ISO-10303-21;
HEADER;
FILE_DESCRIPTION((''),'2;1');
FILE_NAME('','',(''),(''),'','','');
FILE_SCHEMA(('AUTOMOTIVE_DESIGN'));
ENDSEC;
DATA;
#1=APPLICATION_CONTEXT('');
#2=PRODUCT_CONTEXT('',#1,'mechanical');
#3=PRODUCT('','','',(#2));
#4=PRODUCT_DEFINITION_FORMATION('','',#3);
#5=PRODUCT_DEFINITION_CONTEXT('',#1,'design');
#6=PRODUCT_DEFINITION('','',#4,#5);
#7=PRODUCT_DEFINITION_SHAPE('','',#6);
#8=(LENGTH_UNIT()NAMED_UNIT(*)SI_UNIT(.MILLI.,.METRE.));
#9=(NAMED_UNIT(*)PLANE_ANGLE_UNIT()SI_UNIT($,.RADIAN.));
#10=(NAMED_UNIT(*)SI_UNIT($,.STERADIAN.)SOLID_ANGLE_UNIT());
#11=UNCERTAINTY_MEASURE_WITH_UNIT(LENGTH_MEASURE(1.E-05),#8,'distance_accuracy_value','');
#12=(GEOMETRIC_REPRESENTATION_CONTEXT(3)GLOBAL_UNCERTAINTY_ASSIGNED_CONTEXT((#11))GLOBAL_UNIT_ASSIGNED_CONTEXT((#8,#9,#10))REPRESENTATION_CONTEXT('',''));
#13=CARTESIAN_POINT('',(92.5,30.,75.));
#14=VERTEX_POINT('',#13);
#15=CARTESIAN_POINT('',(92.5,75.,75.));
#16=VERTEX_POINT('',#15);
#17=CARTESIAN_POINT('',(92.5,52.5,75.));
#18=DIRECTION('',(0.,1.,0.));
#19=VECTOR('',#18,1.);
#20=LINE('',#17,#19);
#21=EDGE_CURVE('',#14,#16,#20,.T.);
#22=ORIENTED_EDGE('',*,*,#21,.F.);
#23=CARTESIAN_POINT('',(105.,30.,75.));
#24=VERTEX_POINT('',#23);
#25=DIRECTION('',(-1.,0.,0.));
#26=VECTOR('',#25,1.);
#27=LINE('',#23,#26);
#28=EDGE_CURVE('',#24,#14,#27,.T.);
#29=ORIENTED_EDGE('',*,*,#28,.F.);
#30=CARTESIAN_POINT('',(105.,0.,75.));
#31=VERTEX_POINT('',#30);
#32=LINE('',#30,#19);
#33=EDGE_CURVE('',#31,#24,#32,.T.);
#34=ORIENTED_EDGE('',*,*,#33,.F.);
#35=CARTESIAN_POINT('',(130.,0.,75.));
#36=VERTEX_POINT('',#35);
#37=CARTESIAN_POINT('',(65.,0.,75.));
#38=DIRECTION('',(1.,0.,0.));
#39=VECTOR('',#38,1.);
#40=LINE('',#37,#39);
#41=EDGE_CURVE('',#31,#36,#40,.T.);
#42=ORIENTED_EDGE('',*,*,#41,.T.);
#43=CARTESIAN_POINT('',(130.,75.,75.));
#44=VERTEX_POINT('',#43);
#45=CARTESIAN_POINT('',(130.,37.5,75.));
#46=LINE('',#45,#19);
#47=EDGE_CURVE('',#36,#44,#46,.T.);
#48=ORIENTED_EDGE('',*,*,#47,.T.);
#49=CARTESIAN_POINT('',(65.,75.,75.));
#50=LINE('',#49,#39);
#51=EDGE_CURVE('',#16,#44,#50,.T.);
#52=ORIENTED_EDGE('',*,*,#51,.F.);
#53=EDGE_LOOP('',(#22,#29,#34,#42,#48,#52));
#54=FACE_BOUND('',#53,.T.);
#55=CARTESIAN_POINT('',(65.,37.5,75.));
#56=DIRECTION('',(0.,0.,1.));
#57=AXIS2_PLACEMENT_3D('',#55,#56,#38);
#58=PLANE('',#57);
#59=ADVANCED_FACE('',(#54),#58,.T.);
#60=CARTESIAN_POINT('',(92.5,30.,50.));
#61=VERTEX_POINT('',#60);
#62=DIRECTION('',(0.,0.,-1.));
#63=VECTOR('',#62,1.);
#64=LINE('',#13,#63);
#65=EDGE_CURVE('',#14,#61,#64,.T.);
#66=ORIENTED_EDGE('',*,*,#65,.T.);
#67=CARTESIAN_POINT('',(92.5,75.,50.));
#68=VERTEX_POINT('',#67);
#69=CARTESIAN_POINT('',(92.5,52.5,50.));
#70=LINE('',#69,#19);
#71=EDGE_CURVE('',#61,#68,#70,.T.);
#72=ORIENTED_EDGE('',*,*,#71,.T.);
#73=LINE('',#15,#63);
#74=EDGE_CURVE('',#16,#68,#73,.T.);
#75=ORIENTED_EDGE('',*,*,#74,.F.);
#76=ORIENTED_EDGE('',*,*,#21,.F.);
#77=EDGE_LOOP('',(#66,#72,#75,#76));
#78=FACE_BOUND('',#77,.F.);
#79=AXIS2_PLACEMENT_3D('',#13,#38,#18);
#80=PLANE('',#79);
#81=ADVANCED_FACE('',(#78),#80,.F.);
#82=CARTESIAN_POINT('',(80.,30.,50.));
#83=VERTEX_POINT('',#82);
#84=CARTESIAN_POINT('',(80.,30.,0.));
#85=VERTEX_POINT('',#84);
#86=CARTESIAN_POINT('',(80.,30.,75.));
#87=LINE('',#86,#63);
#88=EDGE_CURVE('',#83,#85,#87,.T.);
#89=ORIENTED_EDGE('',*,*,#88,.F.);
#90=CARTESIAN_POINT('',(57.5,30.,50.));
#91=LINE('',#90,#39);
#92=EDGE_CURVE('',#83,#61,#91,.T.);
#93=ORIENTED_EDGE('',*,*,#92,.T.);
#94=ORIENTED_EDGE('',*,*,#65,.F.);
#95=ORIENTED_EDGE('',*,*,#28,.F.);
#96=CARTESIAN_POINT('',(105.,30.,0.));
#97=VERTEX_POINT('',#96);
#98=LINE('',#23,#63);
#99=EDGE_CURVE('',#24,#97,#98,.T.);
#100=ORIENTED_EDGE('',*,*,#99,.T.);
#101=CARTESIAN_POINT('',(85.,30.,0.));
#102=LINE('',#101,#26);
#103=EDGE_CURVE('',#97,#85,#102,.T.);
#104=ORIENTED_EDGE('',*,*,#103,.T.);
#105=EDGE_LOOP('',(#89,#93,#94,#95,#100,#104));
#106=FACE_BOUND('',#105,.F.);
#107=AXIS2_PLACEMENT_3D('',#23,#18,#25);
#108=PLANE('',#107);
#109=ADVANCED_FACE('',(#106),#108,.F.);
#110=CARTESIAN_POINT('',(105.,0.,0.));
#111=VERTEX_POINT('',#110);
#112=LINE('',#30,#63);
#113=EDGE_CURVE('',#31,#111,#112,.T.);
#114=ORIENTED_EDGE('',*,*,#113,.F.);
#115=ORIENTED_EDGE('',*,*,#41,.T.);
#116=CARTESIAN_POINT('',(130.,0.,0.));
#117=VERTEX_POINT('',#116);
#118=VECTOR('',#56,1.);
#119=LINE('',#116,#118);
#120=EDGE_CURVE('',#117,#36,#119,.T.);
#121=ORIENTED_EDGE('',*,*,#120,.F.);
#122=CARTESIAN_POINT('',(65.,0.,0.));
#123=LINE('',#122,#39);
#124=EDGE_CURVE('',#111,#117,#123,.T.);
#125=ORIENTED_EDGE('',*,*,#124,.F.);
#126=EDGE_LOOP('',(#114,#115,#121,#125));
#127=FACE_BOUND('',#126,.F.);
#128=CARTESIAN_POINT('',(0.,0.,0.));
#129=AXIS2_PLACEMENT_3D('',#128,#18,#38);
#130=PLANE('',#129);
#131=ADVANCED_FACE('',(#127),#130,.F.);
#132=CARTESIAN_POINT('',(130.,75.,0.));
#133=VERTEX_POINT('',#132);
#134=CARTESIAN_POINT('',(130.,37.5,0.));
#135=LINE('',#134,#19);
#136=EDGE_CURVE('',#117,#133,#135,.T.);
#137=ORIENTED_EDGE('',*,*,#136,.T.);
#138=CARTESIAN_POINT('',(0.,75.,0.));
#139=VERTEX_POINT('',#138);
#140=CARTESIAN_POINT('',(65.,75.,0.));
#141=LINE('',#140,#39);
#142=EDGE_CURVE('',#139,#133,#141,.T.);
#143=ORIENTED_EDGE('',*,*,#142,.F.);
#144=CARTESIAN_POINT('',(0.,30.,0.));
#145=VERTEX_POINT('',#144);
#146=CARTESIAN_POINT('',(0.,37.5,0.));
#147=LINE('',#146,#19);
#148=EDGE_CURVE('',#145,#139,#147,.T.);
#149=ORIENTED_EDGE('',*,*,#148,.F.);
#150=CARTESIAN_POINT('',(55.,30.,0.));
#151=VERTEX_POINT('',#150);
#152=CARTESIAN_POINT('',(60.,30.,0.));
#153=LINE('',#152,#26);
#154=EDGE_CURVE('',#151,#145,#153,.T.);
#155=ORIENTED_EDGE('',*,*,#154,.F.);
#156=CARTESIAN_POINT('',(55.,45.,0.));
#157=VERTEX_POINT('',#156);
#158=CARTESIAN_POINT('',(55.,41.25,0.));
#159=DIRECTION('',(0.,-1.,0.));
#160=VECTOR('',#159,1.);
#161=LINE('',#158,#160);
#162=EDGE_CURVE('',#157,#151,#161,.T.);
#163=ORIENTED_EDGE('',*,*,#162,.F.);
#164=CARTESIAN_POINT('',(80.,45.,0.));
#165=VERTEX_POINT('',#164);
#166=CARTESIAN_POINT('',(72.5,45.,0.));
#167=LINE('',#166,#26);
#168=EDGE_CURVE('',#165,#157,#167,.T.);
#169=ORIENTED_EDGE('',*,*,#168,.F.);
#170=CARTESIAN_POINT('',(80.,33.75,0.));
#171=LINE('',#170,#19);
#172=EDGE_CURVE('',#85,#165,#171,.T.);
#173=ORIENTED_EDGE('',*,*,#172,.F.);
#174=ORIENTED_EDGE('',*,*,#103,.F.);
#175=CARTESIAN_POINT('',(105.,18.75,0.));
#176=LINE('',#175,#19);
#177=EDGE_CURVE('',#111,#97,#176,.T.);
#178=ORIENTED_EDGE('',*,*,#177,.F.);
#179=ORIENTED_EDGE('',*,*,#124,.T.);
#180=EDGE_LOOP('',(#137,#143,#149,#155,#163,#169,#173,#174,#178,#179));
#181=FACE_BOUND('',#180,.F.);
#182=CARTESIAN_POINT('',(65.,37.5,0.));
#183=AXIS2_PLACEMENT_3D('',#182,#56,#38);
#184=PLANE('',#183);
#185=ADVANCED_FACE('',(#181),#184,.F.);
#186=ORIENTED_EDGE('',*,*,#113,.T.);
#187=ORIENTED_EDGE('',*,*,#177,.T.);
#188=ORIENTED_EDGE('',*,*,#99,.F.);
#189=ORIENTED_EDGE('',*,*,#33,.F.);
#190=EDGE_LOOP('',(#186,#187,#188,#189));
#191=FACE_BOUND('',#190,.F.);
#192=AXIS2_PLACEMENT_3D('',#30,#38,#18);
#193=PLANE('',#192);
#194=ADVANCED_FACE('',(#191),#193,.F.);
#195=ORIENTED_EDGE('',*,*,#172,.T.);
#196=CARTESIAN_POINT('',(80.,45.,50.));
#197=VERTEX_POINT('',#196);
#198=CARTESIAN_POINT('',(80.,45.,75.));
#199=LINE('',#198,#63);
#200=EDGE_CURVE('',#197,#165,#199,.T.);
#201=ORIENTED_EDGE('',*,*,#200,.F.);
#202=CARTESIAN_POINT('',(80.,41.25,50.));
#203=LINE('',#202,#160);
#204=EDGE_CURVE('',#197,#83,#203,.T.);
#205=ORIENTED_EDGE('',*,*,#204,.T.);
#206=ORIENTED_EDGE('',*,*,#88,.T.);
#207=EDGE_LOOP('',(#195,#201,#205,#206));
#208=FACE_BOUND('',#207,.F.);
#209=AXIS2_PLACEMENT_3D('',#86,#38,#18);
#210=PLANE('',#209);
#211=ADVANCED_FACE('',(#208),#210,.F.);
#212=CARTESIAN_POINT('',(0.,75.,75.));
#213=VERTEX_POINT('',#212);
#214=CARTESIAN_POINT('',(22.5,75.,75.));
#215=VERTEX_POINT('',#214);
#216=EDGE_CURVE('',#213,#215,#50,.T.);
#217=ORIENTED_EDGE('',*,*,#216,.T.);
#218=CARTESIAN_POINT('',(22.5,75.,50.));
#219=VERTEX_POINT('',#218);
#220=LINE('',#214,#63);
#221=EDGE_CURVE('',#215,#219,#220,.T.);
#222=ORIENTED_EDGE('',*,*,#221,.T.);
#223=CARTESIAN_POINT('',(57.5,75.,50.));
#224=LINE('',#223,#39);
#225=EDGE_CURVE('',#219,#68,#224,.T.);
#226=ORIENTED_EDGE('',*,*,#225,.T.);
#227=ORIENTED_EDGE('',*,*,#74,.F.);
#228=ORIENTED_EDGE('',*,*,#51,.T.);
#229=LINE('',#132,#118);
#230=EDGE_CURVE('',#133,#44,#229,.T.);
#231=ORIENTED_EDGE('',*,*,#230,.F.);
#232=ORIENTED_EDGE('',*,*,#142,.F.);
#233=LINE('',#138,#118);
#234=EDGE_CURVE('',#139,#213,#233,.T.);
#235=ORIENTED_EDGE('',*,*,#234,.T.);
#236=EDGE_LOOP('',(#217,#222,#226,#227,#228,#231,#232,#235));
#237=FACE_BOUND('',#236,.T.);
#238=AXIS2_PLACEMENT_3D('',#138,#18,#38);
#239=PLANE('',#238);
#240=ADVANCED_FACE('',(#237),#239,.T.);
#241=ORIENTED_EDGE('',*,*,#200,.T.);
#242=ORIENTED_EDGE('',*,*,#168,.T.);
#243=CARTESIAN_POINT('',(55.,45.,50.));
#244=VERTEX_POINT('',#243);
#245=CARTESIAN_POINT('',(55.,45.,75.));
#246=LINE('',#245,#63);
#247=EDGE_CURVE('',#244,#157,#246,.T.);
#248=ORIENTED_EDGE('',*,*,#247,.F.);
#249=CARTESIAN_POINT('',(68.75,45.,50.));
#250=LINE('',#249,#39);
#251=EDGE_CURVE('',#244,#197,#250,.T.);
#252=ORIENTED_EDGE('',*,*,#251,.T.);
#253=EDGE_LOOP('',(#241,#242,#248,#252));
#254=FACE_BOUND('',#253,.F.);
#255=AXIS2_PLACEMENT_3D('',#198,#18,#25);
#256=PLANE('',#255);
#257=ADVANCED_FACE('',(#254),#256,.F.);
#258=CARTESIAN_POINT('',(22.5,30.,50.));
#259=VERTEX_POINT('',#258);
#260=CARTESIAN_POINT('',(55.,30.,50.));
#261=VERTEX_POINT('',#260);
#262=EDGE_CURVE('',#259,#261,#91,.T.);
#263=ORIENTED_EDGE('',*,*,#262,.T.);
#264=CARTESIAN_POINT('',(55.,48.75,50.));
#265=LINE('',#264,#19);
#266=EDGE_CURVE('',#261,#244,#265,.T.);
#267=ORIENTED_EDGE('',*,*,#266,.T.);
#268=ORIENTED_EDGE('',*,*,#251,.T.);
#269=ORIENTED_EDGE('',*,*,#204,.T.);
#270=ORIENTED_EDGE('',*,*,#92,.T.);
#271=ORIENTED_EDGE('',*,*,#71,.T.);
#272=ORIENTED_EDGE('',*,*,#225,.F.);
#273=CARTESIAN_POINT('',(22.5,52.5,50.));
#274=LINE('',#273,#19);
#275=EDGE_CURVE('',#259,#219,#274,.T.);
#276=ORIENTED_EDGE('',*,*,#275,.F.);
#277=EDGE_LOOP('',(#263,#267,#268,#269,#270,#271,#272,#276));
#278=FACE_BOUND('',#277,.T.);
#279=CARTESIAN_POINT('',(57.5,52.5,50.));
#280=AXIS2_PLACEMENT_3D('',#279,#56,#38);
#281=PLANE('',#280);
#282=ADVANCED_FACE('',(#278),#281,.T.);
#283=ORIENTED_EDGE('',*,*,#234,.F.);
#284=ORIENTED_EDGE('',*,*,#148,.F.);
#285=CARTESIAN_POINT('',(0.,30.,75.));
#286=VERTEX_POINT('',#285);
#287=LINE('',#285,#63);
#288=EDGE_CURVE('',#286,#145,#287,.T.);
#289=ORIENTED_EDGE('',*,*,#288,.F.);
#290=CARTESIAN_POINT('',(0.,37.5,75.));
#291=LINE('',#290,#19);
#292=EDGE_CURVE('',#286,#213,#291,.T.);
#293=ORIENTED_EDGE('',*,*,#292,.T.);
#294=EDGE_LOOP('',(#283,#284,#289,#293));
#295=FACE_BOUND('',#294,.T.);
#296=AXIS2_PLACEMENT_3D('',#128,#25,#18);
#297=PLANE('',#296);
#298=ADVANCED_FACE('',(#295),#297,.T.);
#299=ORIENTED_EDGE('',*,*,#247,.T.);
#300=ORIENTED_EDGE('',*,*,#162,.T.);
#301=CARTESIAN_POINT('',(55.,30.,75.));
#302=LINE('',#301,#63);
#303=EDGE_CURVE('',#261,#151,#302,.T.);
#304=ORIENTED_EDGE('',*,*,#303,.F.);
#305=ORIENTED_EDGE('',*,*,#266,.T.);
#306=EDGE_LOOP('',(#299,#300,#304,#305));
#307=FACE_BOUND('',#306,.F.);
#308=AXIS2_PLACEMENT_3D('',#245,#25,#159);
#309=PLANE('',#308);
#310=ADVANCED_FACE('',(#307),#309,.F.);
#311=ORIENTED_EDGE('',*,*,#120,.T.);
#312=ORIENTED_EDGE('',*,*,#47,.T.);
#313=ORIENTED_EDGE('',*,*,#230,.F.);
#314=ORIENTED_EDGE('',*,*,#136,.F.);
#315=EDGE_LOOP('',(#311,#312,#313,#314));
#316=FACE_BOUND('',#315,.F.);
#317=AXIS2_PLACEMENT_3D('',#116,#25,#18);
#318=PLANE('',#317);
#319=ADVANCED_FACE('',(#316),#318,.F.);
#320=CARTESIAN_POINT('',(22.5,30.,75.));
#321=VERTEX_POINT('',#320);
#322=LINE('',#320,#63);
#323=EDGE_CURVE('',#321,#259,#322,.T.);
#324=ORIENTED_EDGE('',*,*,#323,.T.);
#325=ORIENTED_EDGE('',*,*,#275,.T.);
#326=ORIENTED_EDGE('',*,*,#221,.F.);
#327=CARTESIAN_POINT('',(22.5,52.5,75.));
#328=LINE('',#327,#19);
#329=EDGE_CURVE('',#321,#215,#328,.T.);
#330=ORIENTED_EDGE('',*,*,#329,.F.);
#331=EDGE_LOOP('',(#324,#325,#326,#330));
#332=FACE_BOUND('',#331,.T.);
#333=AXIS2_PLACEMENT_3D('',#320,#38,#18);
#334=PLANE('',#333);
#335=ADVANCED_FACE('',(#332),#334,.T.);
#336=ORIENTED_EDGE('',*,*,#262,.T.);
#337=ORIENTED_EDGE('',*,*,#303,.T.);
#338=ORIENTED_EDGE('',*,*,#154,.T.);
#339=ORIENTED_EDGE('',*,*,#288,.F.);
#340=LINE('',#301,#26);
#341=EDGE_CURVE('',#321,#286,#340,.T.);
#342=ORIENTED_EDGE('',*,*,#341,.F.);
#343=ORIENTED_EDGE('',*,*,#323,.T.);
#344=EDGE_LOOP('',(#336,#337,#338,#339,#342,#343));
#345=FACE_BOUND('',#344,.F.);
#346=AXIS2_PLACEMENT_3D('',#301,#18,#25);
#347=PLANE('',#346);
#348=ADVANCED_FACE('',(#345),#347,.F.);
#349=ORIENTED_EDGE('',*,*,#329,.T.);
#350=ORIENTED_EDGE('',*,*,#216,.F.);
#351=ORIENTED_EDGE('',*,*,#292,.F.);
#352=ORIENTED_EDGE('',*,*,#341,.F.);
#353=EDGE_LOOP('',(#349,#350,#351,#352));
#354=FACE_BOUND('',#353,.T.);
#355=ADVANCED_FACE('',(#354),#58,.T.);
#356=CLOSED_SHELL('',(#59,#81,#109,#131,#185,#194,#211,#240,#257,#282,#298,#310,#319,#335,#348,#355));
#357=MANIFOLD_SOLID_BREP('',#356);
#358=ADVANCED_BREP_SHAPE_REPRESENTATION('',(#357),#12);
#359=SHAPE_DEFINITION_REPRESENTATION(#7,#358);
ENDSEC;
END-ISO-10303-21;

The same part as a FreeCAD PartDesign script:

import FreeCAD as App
import Part
import Sketcher
from FreeCAD import Vector

doc = App.newDocument("Part")
body = doc.addObject("PartDesign::Body", "Body")

# Sketch on XY plane
sketch1 = body.newObject("Sketcher::SketchObject", "Sketch")
sketch1.AttachmentSupport = (doc.getObject("XY_Plane"), [""])
sketch1.MapMode = "FlatFace"
sketch1.addGeometry([
    Part.LineSegment(Vector(0, 75, 0), Vector(0, 0, 0)),
    Part.LineSegment(Vector(0, 0, 0), Vector(130, 0, 0)),
    Part.LineSegment(Vector(130, 0, 0), Vector(130, 75, 0)),
    Part.LineSegment(Vector(130, 75, 0), Vector(0, 75, 0)),
], False)
sketch1.addConstraint([
    Sketcher.Constraint("Coincident", 0, 2, 1, 1),
    Sketcher.Constraint("Coincident", 1, 2, 2, 1),
    Sketcher.Constraint("Coincident", 2, 2, 3, 1),
    Sketcher.Constraint("Coincident", 3, 2, 0, 1),
    Sketcher.Constraint("Vertical", 0),
    Sketcher.Constraint("Horizontal", 1),
    Sketcher.Constraint("Vertical", 2),
    Sketcher.Constraint("Horizontal", 3),
    Sketcher.Constraint("Coincident", 0, 2, -1, 1),
    Sketcher.Constraint("DistanceX", 1, 1, 1, 2, 130.0),
    Sketcher.Constraint("DistanceY", 0, 2, 0, 1, 75.0),
])
pad1 = body.newObject("PartDesign::Pad", "Pad")
pad1.Profile = sketch1
pad1.Length = 75

# Sketch on XY plane
sketch2 = body.newObject("Sketcher::SketchObject", "Sketch001")
sketch2.AttachmentSupport = (doc.getObject("XY_Plane"), [""])
sketch2.MapMode = "FlatFace"
sketch2.AttachmentOffset = App.Placement(Vector(0, 0, 75), App.Rotation())
sketch2.addGeometry([
    Part.LineSegment(Vector(0, 0, 0), Vector(105, 0, 0)),  # 0
    Part.LineSegment(Vector(105, 0, 0), Vector(105, 30, 0)),  # 1
    Part.LineSegment(Vector(105, 30, 0), Vector(80, 30, 0)),  # 2
    Part.LineSegment(Vector(80, 30, 0), Vector(80, 45, 0)),  # 3
    Part.LineSegment(Vector(80, 45, 0), Vector(55, 45, 0)),  # 4
    Part.LineSegment(Vector(55, 45, 0), Vector(55, 30, 0)),  # 5
    Part.LineSegment(Vector(55, 30, 0), Vector(0, 30, 0)),  # 6
    Part.LineSegment(Vector(0, 30, 0), Vector(0, 0, 0)),  # 7
], False)
sketch2.addConstraint([
    Sketcher.Constraint("Coincident", 0, 2, 1, 1),
    Sketcher.Constraint("Coincident", 1, 2, 2, 1),
    Sketcher.Constraint("Coincident", 2, 2, 3, 1),
    Sketcher.Constraint("Coincident", 3, 2, 4, 1),
    Sketcher.Constraint("Coincident", 4, 2, 5, 1),
    Sketcher.Constraint("Coincident", 5, 2, 6, 1),
    Sketcher.Constraint("Coincident", 6, 2, 7, 1),
    Sketcher.Constraint("Coincident", 7, 2, 0, 1),
    Sketcher.Constraint("Horizontal", 0),
    Sketcher.Constraint("Vertical", 1),
    Sketcher.Constraint("Horizontal", 2),
    Sketcher.Constraint("Vertical", 3),
    Sketcher.Constraint("Horizontal", 4),
    Sketcher.Constraint("Vertical", 5),
    Sketcher.Constraint("Horizontal", 6),
    Sketcher.Constraint("Vertical", 7),
    Sketcher.Constraint("Coincident", 7, 2, -1, 1),
    Sketcher.Constraint("Horizontal", 2, 2, 5, 2),
    Sketcher.Constraint("Equal", 2, 4),
    Sketcher.Constraint("DistanceX", 0, 1, 0, 2, 105.0),
    Sketcher.Constraint("DistanceX", 2, 2, 2, 1, 25.0),
    Sketcher.Constraint("DistanceY", 1, 1, 1, 2, 30.0),
    Sketcher.Constraint("DistanceY", 3, 1, 3, 2, 15.0),
])
pocket1 = body.newObject("PartDesign::Pocket", "Pocket")
pocket1.Profile = sketch2
pocket1.Length = 90

# Sketch on XY plane
sketch3 = body.newObject("Sketcher::SketchObject", "Sketch002")
sketch3.AttachmentSupport = (doc.getObject("XY_Plane"), [""])
sketch3.MapMode = "FlatFace"
sketch3.AttachmentOffset = App.Placement(Vector(0, 0, 75), App.Rotation())
sketch3.addGeometry([
    Part.LineSegment(Vector(22, 75, 0), Vector(22, 30, 0)),
    Part.LineSegment(Vector(22, 30, 0), Vector(92, 30, 0)),
    Part.LineSegment(Vector(92, 30, 0), Vector(92, 75, 0)),
    Part.LineSegment(Vector(92, 75, 0), Vector(22, 75, 0)),
], False)
sketch3.addConstraint([
    Sketcher.Constraint("Coincident", 0, 2, 1, 1),
    Sketcher.Constraint("Coincident", 1, 2, 2, 1),
    Sketcher.Constraint("Coincident", 2, 2, 3, 1),
    Sketcher.Constraint("Coincident", 3, 2, 0, 1),
    Sketcher.Constraint("Vertical", 0),
    Sketcher.Constraint("Horizontal", 1),
    Sketcher.Constraint("Vertical", 2),
    Sketcher.Constraint("Horizontal", 3),
    Sketcher.Constraint("DistanceX", 1, 1, 1, 2, 70.0),
    Sketcher.Constraint("DistanceY", 0, 2, 0, 1, 45.0),
    Sketcher.Constraint("DistanceY", -1, 1, 0, 2, 30.0),
    Sketcher.Constraint("DistanceX", -1, 1, 0, 2, 22.5),
])
pocket2 = body.newObject("PartDesign::Pocket", "Pocket001")
pocket2.Profile = sketch3
pocket2.Length = 25

doc.recompute()
